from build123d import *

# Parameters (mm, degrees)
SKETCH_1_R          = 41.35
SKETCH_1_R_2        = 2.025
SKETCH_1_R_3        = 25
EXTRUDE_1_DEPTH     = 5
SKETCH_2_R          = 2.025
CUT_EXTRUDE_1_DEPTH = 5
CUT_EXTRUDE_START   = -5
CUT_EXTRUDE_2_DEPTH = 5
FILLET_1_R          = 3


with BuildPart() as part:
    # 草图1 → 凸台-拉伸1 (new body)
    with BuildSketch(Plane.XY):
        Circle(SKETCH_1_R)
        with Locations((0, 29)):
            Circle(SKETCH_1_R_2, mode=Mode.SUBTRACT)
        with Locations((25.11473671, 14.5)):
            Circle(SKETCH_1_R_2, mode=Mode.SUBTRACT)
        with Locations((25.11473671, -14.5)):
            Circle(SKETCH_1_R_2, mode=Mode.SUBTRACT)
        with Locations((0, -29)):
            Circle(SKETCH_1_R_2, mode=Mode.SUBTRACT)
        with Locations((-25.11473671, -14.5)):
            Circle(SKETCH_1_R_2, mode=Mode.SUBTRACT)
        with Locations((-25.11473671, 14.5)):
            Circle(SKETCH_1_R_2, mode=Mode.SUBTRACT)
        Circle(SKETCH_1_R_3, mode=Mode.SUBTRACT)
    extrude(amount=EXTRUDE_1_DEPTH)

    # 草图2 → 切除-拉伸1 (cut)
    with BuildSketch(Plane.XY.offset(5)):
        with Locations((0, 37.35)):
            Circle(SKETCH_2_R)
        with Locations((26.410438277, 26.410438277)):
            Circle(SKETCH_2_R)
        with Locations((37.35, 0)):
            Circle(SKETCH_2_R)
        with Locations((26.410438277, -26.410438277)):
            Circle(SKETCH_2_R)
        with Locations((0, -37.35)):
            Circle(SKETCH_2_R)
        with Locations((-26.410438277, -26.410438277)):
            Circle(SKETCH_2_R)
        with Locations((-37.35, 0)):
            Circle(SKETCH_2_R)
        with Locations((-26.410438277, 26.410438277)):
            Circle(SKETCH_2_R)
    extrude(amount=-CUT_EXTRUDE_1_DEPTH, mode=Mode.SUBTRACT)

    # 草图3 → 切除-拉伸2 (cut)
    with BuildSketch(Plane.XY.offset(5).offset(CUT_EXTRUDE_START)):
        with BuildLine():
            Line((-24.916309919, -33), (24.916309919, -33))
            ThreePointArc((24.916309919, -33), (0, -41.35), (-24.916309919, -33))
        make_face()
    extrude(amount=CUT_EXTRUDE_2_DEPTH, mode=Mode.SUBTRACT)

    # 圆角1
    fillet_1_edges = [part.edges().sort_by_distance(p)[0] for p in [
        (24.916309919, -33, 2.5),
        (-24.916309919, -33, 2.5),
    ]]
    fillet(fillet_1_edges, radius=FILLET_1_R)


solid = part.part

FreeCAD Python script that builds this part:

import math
import FreeCAD as App
import Part
import Sketcher
from FreeCAD import Vector


def edges_at(feature, points):
    """Names of the edges that pass closest to the given points."""
    edges = feature.Shape.Edges
    near = lambda p: min(range(len(edges)), key=lambda i: edges[i].distToShape(Part.Vertex(*p))[0])
    return sorted({f"Edge{near(p) + 1}" for p in points})

doc = App.newDocument("Part")
body = doc.addObject("PartDesign::Body", "Body")

# Sketch on XY plane
sketch1 = body.newObject("Sketcher::SketchObject", "Sketch")
sketch1.AttachmentSupport = (doc.getObject("XY_Plane"), [""])
sketch1.MapMode = "FlatFace"
sketch1.addGeometry(Part.Circle(Vector(0, 0, 0), Vector(0, 0, 1), 41.4), False)
sketch1.addGeometry(Part.Circle(Vector(-25.1, -14.5, 0), Vector(0, 0, 1), 2), False)
sketch1.addGeometry(Part.Circle(Vector(0, -29, 0), Vector(0, 0, 1), 2), False)
sketch1.addGeometry(Part.Circle(Vector(25.1, -14.5, 0), Vector(0, 0, 1), 2), False)
sketch1.addGeometry(Part.Circle(Vector(-25.1, 14.5, 0), Vector(0, 0, 1), 2), False)
sketch1.addGeometry(Part.Circle(Vector(0, 0, 0), Vector(0, 0, 1), 25), False)
sketch1.addGeometry(Part.Circle(Vector(25.1, 14.5, 0), Vector(0, 0, 1), 2), False)
sketch1.addGeometry(Part.Circle(Vector(0, 29, 0), Vector(0, 0, 1), 2), False)
sketch1.addConstraint(Sketcher.Constraint("Coincident", 0, 3, -1, 1))
sketch1.addConstraint(Sketcher.Constraint("Coincident", 5, 3, -1, 1))
sketch1.addConstraint(Sketcher.Constraint("Equal", 1, 2))
sketch1.addConstraint(Sketcher.Constraint("Equal", 2, 3))
sketch1.addConstraint(Sketcher.Constraint("Equal", 3, 4))
sketch1.addConstraint(Sketcher.Constraint("Equal", 4, 6))
sketch1.addConstraint(Sketcher.Constraint("Equal", 6, 7))
sketch1.addConstraint(Sketcher.Constraint("Symmetric", 3, 3, 4, 3, -1, 1))
sketch1.addConstraint(Sketcher.Constraint("Symmetric", 1, 3, 6, 3, -1, 1))
sketch1.addConstraint(Sketcher.Constraint("Symmetric", 2, 3, 7, 3, -1, 1))
sketch1.addConstraint(Sketcher.Constraint("Symmetric", 1, 3, 3, 3, -2))
sketch1.addConstraint(Sketcher.Constraint("PointOnObject", 2, 3, -2))
sketch1.addConstraint(Sketcher.Constraint("Diameter", 5, 50.0))
sketch1.addConstraint(Sketcher.Constraint("Diameter", 0, 82.7))
sketch1.addConstraint(Sketcher.Constraint("Diameter", 1, 4.05))
sketch1.addConstraint(Sketcher.Constraint("DistanceY", 2, 3, -1, 1, 29.0))
sketch1.addConstraint(Sketcher.Constraint("DistanceY", 1, 3, 4, 3, 29.0))
sketch1.addConstraint(Sketcher.Constraint("DistanceX", 1, 3, -1, 1, 25.114737))
pad1 = body.newObject("PartDesign::Pad", "Pad")
pad1.Profile = sketch1
pad1.Length = 5

# Sketch on XY plane
sketch2 = body.newObject("Sketcher::SketchObject", "Sketch001")
sketch2.AttachmentSupport = (doc.getObject("XY_Plane"), [""])
sketch2.MapMode = "FlatFace"
sketch2.AttachmentOffset = App.Placement(Vector(0, 0, 5), App.Rotation())
sketch2.addGeometry(Part.Circle(Vector(0, 37.4, 0), Vector(0, 0, 1), 2), False)
sketch2.addGeometry(Part.Circle(Vector(26.4, 26.4, 0), Vector(0, 0, 1), 2), False)
sketch2.addGeometry(Part.Circle(Vector(37.4, 0, 0), Vector(0, 0, 1), 2), False)
sketch2.addGeometry(Part.Circle(Vector(26.4, -26.4, 0), Vector(0, 0, 1), 2), False)
sketch2.addGeometry(Part.Circle(Vector(0, -37.4, 0), Vector(0, 0, 1), 2), False)
sketch2.addGeometry(Part.Circle(Vector(-26.4, -26.4, 0), Vector(0, 0, 1), 2), False)
sketch2.addGeometry(Part.Circle(Vector(-37.4, 0, 0), Vector(0, 0, 1), 2), False)
sketch2.addGeometry(Part.Circle(Vector(-26.4, 26.4, 0), Vector(0, 0, 1), 2), False)
sketch2.addConstraint(Sketcher.Constraint("Equal", 0, 1))
sketch2.addConstraint(Sketcher.Constraint("Equal", 1, 2))
sketch2.addConstraint(Sketcher.Constraint("Equal", 2, 3))
sketch2.addConstraint(Sketcher.Constraint("Equal", 3, 4))
sketch2.addConstraint(Sketcher.Constraint("Equal", 4, 5))
sketch2.addConstraint(Sketcher.Constraint("Equal", 5, 6))
sketch2.addConstraint(Sketcher.Constraint("Equal", 6, 7))
sketch2.addConstraint(Sketcher.Constraint("Symmetric", 0, 3, 4, 3, -1, 1))
sketch2.addConstraint(Sketcher.Constraint("Symmetric", 1, 3, 5, 3, -1, 1))
sketch2.addConstraint(Sketcher.Constraint("Symmetric", 2, 3, 6, 3, -1, 1))
sketch2.addConstraint(Sketcher.Constraint("Symmetric", 3, 3, 7, 3, -1, 1))
sketch2.addConstraint(Sketcher.Constraint("Symmetric", 3, 3, 5, 3, -2))
sketch2.addConstraint(Sketcher.Constraint("PointOnObject", 0, 3, -2))
sketch2.addConstraint(Sketcher.Constraint("PointOnObject", 2, 3, -1))
sketch2.addConstraint(Sketcher.Constraint("Diameter", 0, 4.05))
sketch2.addConstraint(Sketcher.Constraint("DistanceY", 4, 3, 0, 3, 74.7))
sketch2.addConstraint(Sketcher.Constraint("DistanceX", -1, 1, 2, 3, 37.35))
sketch2.addConstraint(Sketcher.Constraint("DistanceX", -1, 1, 1, 3, 26.410438))
sketch2.addConstraint(Sketcher.Constraint("DistanceY", -1, 1, 1, 3, 26.410438))
pocket1 = body.newObject("PartDesign::Pocket", "Pocket")
pocket1.Profile = sketch2
pocket1.Length = 5

# Sketch on XY plane
sketch3 = body.newObject("Sketcher::SketchObject", "Sketch002")
sketch3.AttachmentSupport = (doc.getObject("XY_Plane"), [""])
sketch3.MapMode = "FlatFace"
sketch3.addGeometry(Part.LineSegment(Vector(25, -33, 0), Vector(-25, -33, 0)), False)
sketch3.addGeometry(Part.ArcOfCircle(Part.Circle(Vector(0, 0, 0), Vector(0, 0, 1), 41), math.radians(-127), math.radians(-53)), False)
sketch3.addConstraint(Sketcher.Constraint("Coincident", 0, 1, 1, 2))
sketch3.addConstraint(Sketcher.Constraint("Coincident", 1, 1, 0, 2))
sketch3.addConstraint(Sketcher.Constraint("Horizontal", 0))
sketch3.addConstraint(Sketcher.Constraint("Coincident", 1, 3, -1, 1))
sketch3.addConstraint(Sketcher.Constraint("Radius", 1, 41.35))
sketch3.addConstraint(Sketcher.Constraint("DistanceY", 0, 1, -1, 1, 33.0))
pocket2 = body.newObject("PartDesign::Pocket", "Pocket001")
pocket2.Profile = sketch3
pocket2.Length = 5
pocket2.Reversed = True
doc.recompute()

fillet = body.newObject("PartDesign::Fillet", "Fillet")
fillet.Base = (pocket2, edges_at(pocket2, [(24.916, -33, 2.5), (-24.916, -33, 2.5)]))
fillet.Radius = 3

doc.recompute()
